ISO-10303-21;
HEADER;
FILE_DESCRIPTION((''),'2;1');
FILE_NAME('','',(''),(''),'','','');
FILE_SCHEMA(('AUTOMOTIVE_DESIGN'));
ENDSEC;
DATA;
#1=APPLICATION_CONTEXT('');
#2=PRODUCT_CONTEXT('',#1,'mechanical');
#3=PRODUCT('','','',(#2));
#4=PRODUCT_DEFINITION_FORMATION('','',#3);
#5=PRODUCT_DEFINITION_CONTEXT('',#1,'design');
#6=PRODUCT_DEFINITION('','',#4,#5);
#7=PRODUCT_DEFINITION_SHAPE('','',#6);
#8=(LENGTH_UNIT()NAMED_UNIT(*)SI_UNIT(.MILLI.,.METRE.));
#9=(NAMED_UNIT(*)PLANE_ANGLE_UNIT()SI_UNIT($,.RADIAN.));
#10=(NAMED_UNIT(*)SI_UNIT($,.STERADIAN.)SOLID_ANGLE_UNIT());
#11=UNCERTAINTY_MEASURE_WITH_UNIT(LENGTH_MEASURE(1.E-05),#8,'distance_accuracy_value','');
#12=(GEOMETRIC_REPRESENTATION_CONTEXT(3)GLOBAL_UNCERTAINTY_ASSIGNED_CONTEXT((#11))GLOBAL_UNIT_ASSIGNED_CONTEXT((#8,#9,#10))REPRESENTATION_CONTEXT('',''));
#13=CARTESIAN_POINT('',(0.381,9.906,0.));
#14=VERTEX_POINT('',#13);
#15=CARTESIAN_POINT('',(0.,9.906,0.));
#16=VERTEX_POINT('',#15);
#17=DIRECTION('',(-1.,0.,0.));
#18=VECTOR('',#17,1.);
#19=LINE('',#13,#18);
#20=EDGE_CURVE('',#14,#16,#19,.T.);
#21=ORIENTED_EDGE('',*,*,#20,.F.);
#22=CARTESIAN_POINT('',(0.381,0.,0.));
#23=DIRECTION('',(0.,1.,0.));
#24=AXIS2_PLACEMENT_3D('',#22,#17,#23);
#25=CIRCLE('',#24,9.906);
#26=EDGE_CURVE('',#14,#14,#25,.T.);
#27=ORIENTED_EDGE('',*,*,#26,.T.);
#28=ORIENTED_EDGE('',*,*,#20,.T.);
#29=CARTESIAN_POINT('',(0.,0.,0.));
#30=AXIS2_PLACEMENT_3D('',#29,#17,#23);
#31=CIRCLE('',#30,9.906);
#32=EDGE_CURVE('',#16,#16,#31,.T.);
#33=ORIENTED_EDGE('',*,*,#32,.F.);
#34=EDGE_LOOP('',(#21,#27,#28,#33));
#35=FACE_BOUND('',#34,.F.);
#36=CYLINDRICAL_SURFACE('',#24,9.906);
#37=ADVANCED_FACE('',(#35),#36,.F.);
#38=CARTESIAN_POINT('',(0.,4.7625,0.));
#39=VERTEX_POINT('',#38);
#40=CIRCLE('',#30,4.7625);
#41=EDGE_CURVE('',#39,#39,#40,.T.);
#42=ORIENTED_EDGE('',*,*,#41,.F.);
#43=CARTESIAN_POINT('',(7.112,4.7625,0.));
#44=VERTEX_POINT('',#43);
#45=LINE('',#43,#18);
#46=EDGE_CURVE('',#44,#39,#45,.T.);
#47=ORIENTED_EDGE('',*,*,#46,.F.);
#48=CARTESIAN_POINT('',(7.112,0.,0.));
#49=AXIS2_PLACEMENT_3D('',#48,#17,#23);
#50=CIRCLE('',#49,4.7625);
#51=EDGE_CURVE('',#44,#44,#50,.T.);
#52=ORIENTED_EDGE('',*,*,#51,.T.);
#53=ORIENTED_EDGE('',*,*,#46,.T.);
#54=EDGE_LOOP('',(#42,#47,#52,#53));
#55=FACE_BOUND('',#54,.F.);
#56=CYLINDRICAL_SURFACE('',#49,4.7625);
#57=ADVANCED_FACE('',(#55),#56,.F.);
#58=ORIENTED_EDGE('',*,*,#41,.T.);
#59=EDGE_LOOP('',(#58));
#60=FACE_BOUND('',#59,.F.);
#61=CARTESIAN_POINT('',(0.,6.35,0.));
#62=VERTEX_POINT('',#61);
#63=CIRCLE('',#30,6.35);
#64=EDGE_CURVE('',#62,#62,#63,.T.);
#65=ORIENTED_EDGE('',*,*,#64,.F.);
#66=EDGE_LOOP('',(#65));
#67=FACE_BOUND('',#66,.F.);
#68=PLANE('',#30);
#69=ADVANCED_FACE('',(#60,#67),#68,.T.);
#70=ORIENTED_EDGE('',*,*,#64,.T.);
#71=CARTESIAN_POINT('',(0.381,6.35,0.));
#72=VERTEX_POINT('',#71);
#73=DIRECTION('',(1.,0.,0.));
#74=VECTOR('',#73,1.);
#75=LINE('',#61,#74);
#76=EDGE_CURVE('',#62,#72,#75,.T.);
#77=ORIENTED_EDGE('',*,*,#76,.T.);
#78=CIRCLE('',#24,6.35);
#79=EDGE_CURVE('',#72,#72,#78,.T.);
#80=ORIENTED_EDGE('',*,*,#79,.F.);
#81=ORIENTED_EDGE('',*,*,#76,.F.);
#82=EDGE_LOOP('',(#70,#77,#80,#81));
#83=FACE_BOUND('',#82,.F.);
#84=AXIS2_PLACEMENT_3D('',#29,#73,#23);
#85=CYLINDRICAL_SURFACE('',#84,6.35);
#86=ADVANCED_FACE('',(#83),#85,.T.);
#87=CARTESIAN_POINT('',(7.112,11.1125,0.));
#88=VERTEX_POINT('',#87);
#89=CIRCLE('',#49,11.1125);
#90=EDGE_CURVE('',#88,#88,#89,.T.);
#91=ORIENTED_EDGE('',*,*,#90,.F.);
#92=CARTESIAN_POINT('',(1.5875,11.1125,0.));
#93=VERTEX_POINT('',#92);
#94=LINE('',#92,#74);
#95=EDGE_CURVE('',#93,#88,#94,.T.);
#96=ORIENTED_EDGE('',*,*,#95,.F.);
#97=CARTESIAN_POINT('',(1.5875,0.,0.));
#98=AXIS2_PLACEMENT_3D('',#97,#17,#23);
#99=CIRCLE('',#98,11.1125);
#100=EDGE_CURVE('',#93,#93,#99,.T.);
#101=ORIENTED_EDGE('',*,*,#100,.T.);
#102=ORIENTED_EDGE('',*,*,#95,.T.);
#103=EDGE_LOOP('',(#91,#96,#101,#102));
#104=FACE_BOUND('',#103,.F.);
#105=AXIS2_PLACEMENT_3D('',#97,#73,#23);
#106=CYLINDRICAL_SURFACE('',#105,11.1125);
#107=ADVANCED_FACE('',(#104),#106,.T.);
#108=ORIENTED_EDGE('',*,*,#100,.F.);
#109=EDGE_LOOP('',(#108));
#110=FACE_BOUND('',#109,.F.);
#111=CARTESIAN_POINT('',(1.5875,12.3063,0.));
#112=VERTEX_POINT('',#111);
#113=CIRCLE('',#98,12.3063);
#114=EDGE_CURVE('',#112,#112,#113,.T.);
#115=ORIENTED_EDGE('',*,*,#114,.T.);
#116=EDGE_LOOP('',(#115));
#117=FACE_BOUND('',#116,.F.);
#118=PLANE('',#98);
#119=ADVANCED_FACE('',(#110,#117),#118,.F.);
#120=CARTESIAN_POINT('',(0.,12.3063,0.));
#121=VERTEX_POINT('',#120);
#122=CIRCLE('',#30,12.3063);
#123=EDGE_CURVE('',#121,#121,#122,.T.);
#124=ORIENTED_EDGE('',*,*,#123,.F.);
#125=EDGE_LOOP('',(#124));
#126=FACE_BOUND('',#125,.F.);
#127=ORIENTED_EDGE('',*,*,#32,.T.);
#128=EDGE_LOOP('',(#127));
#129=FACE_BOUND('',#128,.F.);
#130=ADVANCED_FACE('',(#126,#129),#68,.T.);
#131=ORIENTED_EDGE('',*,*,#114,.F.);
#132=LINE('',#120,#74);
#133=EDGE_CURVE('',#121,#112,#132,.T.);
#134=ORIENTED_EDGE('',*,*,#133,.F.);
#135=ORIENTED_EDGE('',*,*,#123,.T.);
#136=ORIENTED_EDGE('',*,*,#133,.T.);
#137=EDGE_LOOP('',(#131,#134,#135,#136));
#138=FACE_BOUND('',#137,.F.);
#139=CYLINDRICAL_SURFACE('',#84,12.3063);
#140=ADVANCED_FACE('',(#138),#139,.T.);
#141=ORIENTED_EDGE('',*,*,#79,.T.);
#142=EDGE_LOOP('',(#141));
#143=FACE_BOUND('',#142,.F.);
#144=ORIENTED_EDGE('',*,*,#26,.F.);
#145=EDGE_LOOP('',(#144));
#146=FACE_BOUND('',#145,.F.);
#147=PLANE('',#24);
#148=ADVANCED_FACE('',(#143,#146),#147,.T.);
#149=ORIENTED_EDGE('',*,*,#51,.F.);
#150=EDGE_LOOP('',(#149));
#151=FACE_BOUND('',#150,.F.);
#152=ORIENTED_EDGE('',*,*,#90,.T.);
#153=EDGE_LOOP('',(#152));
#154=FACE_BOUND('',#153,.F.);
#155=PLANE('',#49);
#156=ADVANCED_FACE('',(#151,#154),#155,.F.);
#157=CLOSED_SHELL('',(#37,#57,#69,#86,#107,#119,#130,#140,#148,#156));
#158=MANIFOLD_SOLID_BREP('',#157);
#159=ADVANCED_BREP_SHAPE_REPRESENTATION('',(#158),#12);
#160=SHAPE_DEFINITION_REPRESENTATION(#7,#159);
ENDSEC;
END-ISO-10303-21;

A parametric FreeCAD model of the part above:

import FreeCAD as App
import Part
import Sketcher

V = App.Vector
Q = App.Units.Quantity

doc = App.newDocument("Part")
params = doc.addObject("Spreadsheet::Sheet", "Params")
for row, (alias, value) in enumerate([
    ("sketch1_width", "0.28 in"),
    ("sketch1_height", "0.14 in"),
    ("sketch1_height2", "0.25 in"),
    ("sketch1_width2", "0.015 in"),
    ("sketch1_width3", "0.0625 in"),
    ("revolution_angle", "360 deg"),
], start=1):
    params.set(f"A{row}", alias)
    params.set(f"B{row}", "=" + value)
    params.setAlias(f"B{row}", alias)

body = doc.addObject("PartDesign::Body", "Body")

# Sketch on XY plane
sketch1 = body.newObject("Sketcher::SketchObject", "Sketch")
sketch1.AttachmentSupport = (doc.getObject("XY_Plane"), [""])
sketch1.MapMode = "FlatFace"
sketch1.addGeometry(Part.LineSegment(V(0.381, 6.35, 0), V(0.381, 9.906, 0)), False)
sketch1.addGeometry(Part.LineSegment(V(0.381, 9.906, 0), V(0, 9.906, 0)), False)
sketch1.addGeometry(Part.LineSegment(V(0, 9.906, 0), V(0, 12.3063, 0)), False)
sketch1.addGeometry(Part.LineSegment(V(0, 12.3063, 0), V(1.5875, 12.3063, 0)), False)
sketch1.addGeometry(Part.LineSegment(V(1.5875, 12.3063, 0), V(1.5875, 11.1125, 0)), False)
sketch1.addGeometry(Part.LineSegment(V(1.5875, 11.1125, 0), V(7.112, 11.1125, 0)), False)
sketch1.addGeometry(Part.LineSegment(V(7.112, 11.1125, 0), V(7.112, 4.7625, 0)), False)
sketch1.addGeometry(Part.LineSegment(V(7.112, 4.7625, 0), V(0, 4.7625, 0)), False)
sketch1.addGeometry(Part.LineSegment(V(0, 4.7625, 0), V(0, 6.35, 0)), False)
sketch1.addGeometry(Part.LineSegment(V(0, 6.35, 0), V(0.381, 6.35, 0)), False)
sketch1.addConstraint(Sketcher.Constraint("Coincident", 0, 2, 1, 1))
sketch1.addConstraint(Sketcher.Constraint("Coincident", 1, 2, 2, 1))
sketch1.addConstraint(Sketcher.Constraint("Coincident", 2, 2, 3, 1))
sketch1.addConstraint(Sketcher.Constraint("Coincident", 3, 2, 4, 1))
sketch1.addConstraint(Sketcher.Constraint("Coincident", 4, 2, 5, 1))
sketch1.addConstraint(Sketcher.Constraint("Coincident", 5, 2, 6, 1))
sketch1.addConstraint(Sketcher.Constraint("Coincident", 6, 2, 7, 1))
sketch1.addConstraint(Sketcher.Constraint("Coincident", 7, 2, 8, 1))
sketch1.addConstraint(Sketcher.Constraint("Coincident", 8, 2, 9, 1))
sketch1.addConstraint(Sketcher.Constraint("Coincident", 9, 2, 0, 1))
sketch1.addConstraint(Sketcher.Constraint("Vertical", 0))
sketch1.addConstraint(Sketcher.Constraint("Horizontal", 1))
sketch1.addConstraint(Sketcher.Constraint("Vertical", 2))
sketch1.addConstraint(Sketcher.Constraint("Horizontal", 3))
sketch1.addConstraint(Sketcher.Constraint("Vertical", 4))
sketch1.addConstraint(Sketcher.Constraint("Horizontal", 5))
sketch1.addConstraint(Sketcher.Constraint("Vertical", 6))
sketch1.addConstraint(Sketcher.Constraint("Horizontal", 7))
sketch1.addConstraint(Sketcher.Constraint("Vertical", 8))
sketch1.addConstraint(Sketcher.Constraint("Horizontal", 9))
sketch1.addConstraint(Sketcher.Constraint("PointOnObject", 1, 2, -2))
sketch1.addConstraint(Sketcher.Constraint("PointOnObject", 7, 2, -2))
sketch1.addConstraint(Sketcher.Constraint("Equal", 3, 8))
sketch1.addConstraint(Sketcher.Constraint("DistanceX", 7, 2, 7, 1, Q("0.28 in")))
sketch1.addConstraint(Sketcher.Constraint("DistanceY", 0, 1, 0, 2, Q("0.14 in")))
sketch1.addConstraint(Sketcher.Constraint("DistanceY", 6, 2, 6, 1, Q("0.25 in")))
sketch1.addConstraint(Sketcher.Constraint("DistanceX", 1, 2, 1, 1, Q("0.015 in")))
sketch1.addConstraint(Sketcher.Constraint("DistanceX", 3, 1, 3, 2, Q("0.0625 in")))
sketch1.addConstraint(Sketcher.Constraint("DistanceY", 4, 2, 4, 1, Q("0.047 in")))
sketch1.addConstraint(Sketcher.Constraint("DistanceY", -1, 1, 0, 2, Q("0.39 in")))
sketch1.setExpression("Constraints[23]", "Params.sketch1_width")
sketch1.setExpression("Constraints[24]", "Params.sketch1_height")
sketch1.setExpression("Constraints[25]", "Params.sketch1_height2")
sketch1.setExpression("Constraints[26]", "Params.sketch1_width2")
sketch1.setExpression("Constraints[27]", "Params.sketch1_width3")
revolution = body.newObject("PartDesign::Revolution", "Revolution")
revolution.Profile = sketch1
revolution.ReferenceAxis = (sketch1, ["H_Axis"])
revolution.setExpression("Angle", "Params.revolution_angle")

doc.recompute()
